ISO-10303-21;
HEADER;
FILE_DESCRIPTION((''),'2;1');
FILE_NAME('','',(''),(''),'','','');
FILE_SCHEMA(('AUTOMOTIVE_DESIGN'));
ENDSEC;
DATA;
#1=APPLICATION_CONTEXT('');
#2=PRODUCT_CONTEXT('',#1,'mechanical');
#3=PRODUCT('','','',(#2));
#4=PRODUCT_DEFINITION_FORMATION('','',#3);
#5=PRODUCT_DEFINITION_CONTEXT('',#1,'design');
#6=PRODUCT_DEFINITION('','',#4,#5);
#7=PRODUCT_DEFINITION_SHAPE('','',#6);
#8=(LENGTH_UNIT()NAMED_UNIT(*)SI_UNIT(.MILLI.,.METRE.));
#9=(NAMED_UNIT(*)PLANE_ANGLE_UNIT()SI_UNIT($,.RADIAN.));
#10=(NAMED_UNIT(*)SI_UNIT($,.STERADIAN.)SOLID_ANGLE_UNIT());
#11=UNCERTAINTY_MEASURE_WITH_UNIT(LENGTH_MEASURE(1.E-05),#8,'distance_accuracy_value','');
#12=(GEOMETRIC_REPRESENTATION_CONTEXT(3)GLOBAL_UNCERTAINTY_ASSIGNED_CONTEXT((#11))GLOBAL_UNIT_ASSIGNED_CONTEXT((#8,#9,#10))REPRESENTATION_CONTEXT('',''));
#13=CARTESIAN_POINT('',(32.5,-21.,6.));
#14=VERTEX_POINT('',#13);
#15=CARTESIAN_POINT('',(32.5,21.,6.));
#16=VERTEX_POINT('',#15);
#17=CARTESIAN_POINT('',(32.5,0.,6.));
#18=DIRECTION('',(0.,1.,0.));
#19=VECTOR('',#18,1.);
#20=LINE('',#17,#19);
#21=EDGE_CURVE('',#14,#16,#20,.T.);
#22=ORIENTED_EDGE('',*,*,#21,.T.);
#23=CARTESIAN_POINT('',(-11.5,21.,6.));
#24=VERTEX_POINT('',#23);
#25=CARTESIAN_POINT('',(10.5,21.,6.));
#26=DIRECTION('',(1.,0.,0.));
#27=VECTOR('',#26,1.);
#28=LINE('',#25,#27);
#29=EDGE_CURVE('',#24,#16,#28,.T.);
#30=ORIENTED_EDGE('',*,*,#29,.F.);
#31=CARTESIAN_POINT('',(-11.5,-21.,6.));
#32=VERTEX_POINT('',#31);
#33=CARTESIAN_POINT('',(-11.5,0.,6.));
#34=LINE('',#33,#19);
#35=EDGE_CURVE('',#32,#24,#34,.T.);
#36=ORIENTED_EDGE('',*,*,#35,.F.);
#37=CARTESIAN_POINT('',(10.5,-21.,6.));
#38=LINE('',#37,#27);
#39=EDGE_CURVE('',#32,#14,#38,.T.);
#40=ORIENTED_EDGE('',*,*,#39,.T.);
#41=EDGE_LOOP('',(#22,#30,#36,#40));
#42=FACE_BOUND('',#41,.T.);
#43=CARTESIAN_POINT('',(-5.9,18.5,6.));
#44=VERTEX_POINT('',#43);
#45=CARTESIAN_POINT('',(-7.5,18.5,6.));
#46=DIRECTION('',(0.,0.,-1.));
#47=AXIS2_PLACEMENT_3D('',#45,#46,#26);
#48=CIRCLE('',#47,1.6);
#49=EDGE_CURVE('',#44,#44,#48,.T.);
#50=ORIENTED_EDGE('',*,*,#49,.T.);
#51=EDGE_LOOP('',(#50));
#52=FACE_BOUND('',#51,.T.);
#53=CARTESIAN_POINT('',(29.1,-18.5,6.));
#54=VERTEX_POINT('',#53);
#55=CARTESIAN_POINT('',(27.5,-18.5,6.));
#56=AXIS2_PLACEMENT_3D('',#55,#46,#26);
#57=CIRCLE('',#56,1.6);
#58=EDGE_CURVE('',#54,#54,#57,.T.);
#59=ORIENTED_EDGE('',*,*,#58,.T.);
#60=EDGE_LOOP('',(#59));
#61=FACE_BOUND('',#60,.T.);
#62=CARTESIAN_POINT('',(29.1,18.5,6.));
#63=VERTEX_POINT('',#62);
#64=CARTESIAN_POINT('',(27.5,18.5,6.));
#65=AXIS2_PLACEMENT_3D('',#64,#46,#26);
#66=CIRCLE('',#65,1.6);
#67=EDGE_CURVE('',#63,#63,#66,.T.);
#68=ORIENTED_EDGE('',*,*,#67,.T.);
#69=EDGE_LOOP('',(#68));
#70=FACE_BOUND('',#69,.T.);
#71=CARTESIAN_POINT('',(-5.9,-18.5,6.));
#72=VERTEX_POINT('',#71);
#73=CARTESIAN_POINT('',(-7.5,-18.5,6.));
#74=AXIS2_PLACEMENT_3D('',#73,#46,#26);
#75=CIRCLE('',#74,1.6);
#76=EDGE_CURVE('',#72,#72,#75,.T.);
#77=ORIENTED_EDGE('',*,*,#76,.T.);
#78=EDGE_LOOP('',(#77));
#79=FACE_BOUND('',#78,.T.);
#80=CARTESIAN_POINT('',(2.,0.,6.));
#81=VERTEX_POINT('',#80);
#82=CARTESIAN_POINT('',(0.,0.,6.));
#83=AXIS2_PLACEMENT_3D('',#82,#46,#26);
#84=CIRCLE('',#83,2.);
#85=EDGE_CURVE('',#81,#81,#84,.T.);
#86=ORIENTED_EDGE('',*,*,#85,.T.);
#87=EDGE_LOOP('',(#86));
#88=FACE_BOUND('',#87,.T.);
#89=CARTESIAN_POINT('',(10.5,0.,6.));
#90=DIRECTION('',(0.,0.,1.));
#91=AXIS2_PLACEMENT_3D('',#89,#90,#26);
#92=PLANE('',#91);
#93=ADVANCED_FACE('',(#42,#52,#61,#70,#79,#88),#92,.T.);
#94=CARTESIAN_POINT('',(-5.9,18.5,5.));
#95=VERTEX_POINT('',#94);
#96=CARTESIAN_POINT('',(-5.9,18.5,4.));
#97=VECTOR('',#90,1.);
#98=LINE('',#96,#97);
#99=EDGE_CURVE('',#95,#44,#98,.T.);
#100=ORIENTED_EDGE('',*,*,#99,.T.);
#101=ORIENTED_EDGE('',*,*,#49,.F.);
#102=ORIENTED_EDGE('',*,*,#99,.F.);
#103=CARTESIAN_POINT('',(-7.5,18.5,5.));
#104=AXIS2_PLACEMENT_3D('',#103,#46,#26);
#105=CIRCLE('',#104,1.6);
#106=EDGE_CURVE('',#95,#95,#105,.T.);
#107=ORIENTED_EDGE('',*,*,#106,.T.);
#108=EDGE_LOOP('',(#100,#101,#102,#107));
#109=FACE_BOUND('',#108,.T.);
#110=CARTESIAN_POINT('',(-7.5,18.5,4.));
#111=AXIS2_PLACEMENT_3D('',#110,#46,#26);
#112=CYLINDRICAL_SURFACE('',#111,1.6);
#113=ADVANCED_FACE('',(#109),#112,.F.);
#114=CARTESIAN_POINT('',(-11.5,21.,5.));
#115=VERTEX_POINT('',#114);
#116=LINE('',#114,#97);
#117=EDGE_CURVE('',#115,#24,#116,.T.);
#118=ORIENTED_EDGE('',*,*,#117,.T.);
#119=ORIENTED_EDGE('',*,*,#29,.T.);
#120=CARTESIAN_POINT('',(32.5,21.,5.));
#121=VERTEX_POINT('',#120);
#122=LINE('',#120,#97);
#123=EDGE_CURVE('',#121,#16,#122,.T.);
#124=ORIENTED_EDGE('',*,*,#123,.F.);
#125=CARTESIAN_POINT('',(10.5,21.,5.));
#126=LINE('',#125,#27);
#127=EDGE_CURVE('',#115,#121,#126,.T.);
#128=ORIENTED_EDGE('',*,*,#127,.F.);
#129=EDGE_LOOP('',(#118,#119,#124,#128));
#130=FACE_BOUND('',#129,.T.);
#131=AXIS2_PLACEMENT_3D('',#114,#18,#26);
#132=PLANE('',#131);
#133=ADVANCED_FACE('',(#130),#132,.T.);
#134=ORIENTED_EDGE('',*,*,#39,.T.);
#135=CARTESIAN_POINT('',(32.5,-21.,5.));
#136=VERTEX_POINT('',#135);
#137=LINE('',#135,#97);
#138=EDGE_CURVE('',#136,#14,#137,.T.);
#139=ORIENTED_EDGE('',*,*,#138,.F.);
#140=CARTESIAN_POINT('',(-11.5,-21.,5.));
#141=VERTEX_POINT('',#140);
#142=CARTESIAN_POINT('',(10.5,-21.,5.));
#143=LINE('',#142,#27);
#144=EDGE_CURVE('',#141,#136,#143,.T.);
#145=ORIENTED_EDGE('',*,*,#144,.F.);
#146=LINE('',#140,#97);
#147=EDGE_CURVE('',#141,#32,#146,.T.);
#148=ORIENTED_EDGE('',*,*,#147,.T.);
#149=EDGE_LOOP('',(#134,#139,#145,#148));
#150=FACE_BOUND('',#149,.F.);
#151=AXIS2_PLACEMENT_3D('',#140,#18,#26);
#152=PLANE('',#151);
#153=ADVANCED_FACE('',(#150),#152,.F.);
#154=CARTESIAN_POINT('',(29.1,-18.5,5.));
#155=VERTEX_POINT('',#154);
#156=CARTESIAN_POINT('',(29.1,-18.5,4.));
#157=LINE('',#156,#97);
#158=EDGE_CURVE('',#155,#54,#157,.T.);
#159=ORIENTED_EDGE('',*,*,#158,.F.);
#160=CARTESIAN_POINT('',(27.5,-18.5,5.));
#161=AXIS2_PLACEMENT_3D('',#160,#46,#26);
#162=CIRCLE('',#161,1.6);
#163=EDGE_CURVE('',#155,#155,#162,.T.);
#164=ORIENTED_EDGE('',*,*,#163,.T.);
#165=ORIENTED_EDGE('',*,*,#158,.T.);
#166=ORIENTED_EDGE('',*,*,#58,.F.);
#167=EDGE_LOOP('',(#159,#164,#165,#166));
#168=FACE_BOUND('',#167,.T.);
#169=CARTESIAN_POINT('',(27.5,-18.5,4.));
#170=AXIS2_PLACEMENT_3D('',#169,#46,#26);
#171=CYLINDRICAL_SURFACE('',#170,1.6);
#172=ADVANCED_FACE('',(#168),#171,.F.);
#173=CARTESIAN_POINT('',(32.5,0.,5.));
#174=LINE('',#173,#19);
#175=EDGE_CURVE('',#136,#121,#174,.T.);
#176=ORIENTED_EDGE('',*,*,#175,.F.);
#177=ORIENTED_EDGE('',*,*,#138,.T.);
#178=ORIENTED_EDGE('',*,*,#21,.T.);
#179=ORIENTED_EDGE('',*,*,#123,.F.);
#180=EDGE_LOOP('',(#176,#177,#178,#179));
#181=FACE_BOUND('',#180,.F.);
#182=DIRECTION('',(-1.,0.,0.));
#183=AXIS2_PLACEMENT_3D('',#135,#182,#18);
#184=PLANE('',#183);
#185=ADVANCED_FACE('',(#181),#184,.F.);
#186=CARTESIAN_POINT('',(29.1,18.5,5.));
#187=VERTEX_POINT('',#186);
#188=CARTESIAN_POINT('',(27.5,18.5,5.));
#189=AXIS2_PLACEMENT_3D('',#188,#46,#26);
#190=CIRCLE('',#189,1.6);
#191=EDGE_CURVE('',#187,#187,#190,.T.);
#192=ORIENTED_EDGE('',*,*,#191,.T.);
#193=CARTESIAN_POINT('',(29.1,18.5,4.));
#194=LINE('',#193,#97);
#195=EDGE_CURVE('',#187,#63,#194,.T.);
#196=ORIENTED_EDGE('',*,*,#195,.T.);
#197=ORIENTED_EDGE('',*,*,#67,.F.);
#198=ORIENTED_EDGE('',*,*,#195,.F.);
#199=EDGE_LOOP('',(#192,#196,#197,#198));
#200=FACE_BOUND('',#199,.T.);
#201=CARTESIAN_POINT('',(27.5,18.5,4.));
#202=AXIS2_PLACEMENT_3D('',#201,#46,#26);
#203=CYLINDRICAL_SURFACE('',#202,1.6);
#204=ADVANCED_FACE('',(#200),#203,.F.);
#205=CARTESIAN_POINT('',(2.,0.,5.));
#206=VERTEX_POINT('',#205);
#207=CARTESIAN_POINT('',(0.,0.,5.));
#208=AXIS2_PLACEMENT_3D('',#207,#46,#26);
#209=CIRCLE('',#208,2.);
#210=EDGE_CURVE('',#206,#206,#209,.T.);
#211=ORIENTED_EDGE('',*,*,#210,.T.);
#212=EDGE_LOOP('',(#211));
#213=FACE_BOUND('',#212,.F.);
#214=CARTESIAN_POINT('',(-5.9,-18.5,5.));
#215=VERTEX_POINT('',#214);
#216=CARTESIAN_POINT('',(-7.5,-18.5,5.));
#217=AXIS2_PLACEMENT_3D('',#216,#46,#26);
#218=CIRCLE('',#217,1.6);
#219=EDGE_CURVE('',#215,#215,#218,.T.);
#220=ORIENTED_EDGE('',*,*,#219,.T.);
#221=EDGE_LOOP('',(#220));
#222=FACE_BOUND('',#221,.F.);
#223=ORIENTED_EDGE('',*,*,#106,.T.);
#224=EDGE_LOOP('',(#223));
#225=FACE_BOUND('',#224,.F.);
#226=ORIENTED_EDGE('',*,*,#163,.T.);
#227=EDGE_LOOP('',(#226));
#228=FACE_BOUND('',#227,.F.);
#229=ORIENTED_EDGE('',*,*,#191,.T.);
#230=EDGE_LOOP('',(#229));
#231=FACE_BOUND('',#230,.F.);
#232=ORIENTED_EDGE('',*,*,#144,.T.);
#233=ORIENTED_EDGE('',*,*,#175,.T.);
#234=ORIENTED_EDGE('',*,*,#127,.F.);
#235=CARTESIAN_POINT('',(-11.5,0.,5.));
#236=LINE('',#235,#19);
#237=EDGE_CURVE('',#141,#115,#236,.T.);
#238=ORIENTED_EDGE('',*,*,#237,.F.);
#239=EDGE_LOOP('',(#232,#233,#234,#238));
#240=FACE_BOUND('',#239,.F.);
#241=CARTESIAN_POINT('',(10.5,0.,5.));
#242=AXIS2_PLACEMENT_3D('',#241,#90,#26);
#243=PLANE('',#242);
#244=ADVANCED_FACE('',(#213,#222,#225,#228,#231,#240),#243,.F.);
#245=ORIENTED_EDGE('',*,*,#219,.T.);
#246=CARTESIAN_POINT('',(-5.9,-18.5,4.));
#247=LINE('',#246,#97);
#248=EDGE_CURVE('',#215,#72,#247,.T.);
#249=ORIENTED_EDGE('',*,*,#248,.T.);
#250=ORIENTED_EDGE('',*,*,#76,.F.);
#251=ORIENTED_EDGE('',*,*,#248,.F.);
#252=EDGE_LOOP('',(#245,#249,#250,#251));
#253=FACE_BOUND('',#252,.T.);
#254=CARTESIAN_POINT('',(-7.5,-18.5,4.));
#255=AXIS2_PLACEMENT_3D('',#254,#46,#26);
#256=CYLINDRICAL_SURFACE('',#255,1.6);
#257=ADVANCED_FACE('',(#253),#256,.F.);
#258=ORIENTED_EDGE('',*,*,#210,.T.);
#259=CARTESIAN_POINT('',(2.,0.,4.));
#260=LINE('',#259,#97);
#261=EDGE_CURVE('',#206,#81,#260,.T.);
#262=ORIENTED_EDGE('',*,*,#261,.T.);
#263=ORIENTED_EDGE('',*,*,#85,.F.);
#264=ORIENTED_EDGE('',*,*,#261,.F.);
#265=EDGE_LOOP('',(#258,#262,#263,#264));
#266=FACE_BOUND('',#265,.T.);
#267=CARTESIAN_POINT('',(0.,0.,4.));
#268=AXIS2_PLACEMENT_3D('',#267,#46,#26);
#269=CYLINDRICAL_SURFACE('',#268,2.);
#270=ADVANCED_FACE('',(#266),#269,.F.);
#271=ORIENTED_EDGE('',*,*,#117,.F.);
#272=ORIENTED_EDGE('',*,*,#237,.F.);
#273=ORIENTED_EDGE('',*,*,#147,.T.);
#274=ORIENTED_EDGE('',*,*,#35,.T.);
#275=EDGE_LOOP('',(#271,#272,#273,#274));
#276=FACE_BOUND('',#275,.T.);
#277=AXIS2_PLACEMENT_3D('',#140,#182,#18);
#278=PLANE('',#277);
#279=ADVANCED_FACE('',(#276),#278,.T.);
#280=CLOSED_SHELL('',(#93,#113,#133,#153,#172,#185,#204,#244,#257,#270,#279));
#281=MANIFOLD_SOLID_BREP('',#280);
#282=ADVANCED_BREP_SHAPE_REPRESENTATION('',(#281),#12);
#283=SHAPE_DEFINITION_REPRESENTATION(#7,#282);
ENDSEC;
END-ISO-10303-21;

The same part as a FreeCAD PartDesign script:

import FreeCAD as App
import Part
import Sketcher
from FreeCAD import Vector


def add_polygon(sketch, points):
    """Adds a closed chain of lines whose ends are joined by coincident constraints."""
    first, n = sketch.GeometryCount, len(points)
    for a, b in zip(points, points[1:] + points[:1]):
        sketch.addGeometry(Part.LineSegment(App.Vector(*a, 0), App.Vector(*b, 0)), False)
    for i in range(n):
        sketch.addConstraint(Sketcher.Constraint("Coincident", first + i, 2, first + (i + 1) % n, 1))

doc = App.newDocument("Part")
body = doc.addObject("PartDesign::Body", "Body")

# Sketch on XY plane
sketch1 = body.newObject("Sketcher::SketchObject", "Sketch")
sketch1.AttachmentSupport = (doc.getObject("XY_Plane"), [""])
sketch1.MapMode = "FlatFace"
sketch1.addGeometry(Part.Circle(Vector(-7.5, -18.5, 0), Vector(0, 0, 1), 1.6), False)
sketch1.addConstraint([
    Sketcher.Constraint("Diameter", 0, 3.2),
    Sketcher.Constraint("DistanceX", 0, 3, -1, 1, 7.5),
    Sketcher.Constraint("DistanceY", 0, 3, -1, 1, 18.5),
])
pad1 = body.newObject("PartDesign::Pad", "Pad")
pad1.Profile = sketch1
pad1.Length = 10
body2 = doc.addObject("PartDesign::Body", "Body001")

# Sketch on XY plane
sketch2 = body2.newObject("Sketcher::SketchObject", "Sketch001")
sketch2.AttachmentSupport = (doc.getObject("XY_Plane001"), [""])
sketch2.MapMode = "FlatFace"
sketch2.addGeometry(Part.Circle(Vector(-7.5, 18.5, 0), Vector(0, 0, 1), 1.6), False)
sketch2.addConstraint([
    Sketcher.Constraint("Diameter", 0, 3.2),
    Sketcher.Constraint("DistanceX", 0, 3, -1, 1, 7.5),
    Sketcher.Constraint("DistanceY", -1, 1, 0, 3, 18.5),
])
pad2 = body2.newObject("PartDesign::Pad", "Pad001")
pad2.Profile = sketch2
pad2.Length = 10
body3 = doc.addObject("PartDesign::Body", "Body002")

# Sketch on XY plane
sketch3 = body3.newObject("Sketcher::SketchObject", "Sketch002")
sketch3.AttachmentSupport = (doc.getObject("XY_Plane002"), [""])
sketch3.MapMode = "FlatFace"
sketch3.addGeometry(Part.Circle(Vector(27.5, -18.5, 0), Vector(0, 0, 1), 1.6), False)
sketch3.addConstraint([
    Sketcher.Constraint("Diameter", 0, 3.2),
    Sketcher.Constraint("DistanceX", -1, 1, 0, 3, 27.5),
    Sketcher.Constraint("DistanceY", 0, 3, -1, 1, 18.5),
])
pad3 = body3.newObject("PartDesign::Pad", "Pad002")
pad3.Profile = sketch3
pad3.Length = 10
body4 = doc.addObject("PartDesign::Body", "Body003")

# Sketch on XY plane
sketch4 = body4.newObject("Sketcher::SketchObject", "Sketch003")
sketch4.AttachmentSupport = (doc.getObject("XY_Plane003"), [""])
sketch4.MapMode = "FlatFace"
sketch4.addGeometry(Part.Circle(Vector(27.5, 18.5, 0), Vector(0, 0, 1), 1.6), False)
sketch4.addConstraint([
    Sketcher.Constraint("Diameter", 0, 3.2),
    Sketcher.Constraint("DistanceX", -1, 1, 0, 3, 27.5),
    Sketcher.Constraint("DistanceY", -1, 1, 0, 3, 18.5),
])
pad4 = body4.newObject("PartDesign::Pad", "Pad003")
pad4.Profile = sketch4
pad4.Length = 10
body5 = doc.addObject("PartDesign::Body", "Body004")
body5.AllowCompound = True

# Sketch on XY plane
sketch5 = body5.newObject("Sketcher::SketchObject", "Sketch004")
sketch5.AttachmentSupport = (doc.getObject("XY_Plane004"), [""])
sketch5.MapMode = "FlatFace"
sketch5.addGeometry(Part.Circle(Vector(0, 0, 0), Vector(0, 0, 1), 2), False)
sketch5.addConstraint([
    Sketcher.Constraint("Coincident", 0, 3, -1, 1),
    Sketcher.Constraint("Diameter", 0, 4.0),
])
pad5 = body5.newObject("PartDesign::Pad", "Pad004")
pad5.Profile = sketch5
pad5.Length = 10
doc.recompute()

boolean = body5.newObject("PartDesign::Boolean", "Boolean")
boolean.Type = "Fuse"
boolean.addObjects([body])
doc.recompute()

boolean2 = body5.newObject("PartDesign::Boolean", "Boolean001")
boolean2.Type = "Fuse"
boolean2.addObjects([body2])
doc.recompute()

boolean3 = body5.newObject("PartDesign::Boolean", "Boolean002")
boolean3.Type = "Fuse"
boolean3.addObjects([body3])
doc.recompute()

boolean4 = body5.newObject("PartDesign::Boolean", "Boolean003")
boolean4.Type = "Fuse"
boolean4.addObjects([body4])
body6 = doc.addObject("PartDesign::Body", "Body005")

# Sketch on XY plane
sketch6 = body6.newObject("Sketcher::SketchObject", "Sketch005")
sketch6.AttachmentSupport = (doc.getObject("XY_Plane005"), [""])
sketch6.MapMode = "FlatFace"
sketch6.AttachmentOffset = App.Placement(Vector(0, 0, 1), App.Rotation())
add_polygon(sketch6, [(-11.5, 21), (-11.5, -21), (32.5, -21), (32.5, 21)])  # lines 0-3
sketch6.addConstraint([
    Sketcher.Constraint("Vertical", 0),
    Sketcher.Constraint("Horizontal", 1),
    Sketcher.Constraint("Vertical", 2),
    Sketcher.Constraint("Horizontal", 3),
    Sketcher.Constraint("DistanceX", 1, 1, 1, 2, 44.0),
    Sketcher.Constraint("DistanceY", 0, 2, 0, 1, 42.0),
    Sketcher.Constraint("DistanceY", 0, 2, -1, 1, 21.0),
    Sketcher.Constraint("DistanceX", 0, 2, -1, 1, 11.5),
])
pad6 = body6.newObject("PartDesign::Pad", "Pad005")
pad6.Profile = sketch6
pad6.Length = 1
doc.recompute()

boolean5 = body6.newObject("PartDesign::Boolean", "Boolean004")
boolean5.Type = "Cut"
boolean5.addObjects([body5])
body7 = doc.addObject("PartDesign::Body", "Body006")
doc.recompute()

body6.Placement = App.Placement(Vector(0, 0, 4), App.Rotation(Vector(0, 0, 1), 0))
boolean6 = body7.newObject("PartDesign::Boolean", "Boolean005")
boolean6.Type = "Fuse"
boolean6.addObjects([body6])

doc.recompute()
